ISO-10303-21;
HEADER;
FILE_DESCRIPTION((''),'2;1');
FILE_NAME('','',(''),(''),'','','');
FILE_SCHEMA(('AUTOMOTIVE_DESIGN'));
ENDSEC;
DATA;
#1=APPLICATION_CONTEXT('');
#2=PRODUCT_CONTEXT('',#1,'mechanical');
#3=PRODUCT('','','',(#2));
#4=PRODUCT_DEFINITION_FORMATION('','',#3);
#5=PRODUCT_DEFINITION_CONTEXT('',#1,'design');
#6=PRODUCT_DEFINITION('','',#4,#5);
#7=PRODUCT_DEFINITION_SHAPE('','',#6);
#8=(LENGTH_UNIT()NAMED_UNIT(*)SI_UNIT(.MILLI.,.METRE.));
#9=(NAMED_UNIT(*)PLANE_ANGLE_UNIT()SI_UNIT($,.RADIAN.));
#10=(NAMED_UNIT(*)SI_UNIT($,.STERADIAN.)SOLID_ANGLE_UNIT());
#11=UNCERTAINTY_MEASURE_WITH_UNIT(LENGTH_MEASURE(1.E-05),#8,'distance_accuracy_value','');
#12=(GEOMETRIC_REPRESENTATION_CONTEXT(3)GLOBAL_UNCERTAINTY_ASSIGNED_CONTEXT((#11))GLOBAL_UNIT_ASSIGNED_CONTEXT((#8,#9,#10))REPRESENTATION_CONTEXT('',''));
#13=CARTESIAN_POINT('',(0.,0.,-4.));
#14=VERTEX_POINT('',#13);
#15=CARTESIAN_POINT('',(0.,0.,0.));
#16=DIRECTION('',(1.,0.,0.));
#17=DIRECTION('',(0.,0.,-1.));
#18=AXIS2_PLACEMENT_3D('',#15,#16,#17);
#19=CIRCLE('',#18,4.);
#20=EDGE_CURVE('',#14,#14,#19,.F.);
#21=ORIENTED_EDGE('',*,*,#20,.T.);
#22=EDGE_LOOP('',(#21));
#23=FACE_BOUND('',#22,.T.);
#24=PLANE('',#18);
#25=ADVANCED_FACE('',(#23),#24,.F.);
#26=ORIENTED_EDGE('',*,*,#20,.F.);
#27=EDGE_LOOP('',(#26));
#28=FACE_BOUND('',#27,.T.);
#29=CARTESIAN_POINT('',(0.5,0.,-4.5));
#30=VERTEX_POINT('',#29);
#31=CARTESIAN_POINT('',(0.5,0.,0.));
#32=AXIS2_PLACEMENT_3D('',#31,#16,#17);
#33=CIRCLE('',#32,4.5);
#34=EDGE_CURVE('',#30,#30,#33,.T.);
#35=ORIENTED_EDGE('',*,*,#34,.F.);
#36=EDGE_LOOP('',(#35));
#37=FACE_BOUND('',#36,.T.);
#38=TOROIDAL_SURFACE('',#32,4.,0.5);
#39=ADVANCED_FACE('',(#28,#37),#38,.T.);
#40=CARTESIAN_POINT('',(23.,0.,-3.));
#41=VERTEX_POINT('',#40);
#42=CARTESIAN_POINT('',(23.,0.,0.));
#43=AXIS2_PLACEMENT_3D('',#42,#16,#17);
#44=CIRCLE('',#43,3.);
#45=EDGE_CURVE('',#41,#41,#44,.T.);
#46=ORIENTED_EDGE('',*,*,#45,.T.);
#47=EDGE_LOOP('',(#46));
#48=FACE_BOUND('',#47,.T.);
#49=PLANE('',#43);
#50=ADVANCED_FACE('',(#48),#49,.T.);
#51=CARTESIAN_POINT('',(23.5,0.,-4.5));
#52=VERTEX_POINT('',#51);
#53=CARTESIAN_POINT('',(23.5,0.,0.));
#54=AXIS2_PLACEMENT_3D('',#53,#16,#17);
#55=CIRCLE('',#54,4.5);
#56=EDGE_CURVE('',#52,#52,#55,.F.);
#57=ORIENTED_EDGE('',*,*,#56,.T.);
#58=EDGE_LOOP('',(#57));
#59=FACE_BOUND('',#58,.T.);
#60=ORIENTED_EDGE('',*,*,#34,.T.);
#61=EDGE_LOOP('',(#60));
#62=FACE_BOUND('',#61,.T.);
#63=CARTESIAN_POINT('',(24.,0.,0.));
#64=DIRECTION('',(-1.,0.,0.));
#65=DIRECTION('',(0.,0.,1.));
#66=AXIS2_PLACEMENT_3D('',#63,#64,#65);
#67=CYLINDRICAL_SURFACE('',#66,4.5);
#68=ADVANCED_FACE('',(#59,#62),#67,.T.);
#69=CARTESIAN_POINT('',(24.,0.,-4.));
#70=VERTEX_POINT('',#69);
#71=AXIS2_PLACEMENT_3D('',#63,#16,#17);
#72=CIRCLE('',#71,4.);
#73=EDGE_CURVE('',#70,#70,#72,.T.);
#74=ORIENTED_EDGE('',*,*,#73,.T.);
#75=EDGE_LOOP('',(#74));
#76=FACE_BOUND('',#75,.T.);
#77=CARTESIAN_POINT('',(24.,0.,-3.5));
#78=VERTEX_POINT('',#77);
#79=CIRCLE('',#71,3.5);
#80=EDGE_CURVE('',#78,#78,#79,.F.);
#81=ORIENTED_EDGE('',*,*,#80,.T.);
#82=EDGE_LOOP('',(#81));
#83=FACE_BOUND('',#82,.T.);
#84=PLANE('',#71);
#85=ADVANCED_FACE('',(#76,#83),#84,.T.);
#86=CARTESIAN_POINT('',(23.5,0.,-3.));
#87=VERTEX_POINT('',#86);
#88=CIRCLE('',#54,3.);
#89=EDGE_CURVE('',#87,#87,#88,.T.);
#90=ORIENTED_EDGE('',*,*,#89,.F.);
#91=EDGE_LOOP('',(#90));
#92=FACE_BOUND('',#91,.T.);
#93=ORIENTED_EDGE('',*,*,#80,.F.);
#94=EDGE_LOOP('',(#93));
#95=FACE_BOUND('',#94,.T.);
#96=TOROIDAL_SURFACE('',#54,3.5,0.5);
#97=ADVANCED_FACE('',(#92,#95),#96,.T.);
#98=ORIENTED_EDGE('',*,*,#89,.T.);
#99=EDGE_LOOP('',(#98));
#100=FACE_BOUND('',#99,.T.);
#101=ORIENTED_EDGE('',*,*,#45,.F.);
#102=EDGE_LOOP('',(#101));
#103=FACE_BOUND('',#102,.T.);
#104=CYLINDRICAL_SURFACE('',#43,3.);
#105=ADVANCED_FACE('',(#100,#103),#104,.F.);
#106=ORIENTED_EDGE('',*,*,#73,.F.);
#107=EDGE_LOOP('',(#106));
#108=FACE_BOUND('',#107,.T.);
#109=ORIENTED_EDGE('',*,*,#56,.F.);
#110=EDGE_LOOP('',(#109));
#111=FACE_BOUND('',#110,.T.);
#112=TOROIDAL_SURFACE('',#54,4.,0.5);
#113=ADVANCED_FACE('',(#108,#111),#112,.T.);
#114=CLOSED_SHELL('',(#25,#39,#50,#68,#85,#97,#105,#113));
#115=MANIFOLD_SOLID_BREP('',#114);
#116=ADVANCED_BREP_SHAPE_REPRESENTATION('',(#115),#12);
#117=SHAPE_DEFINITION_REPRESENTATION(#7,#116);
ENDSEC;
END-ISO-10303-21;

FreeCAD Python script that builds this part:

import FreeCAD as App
import Part
import Sketcher

V = App.Vector
Q = App.Units.Quantity


def edges_at(feature, points):
    """Names of the edges that pass closest to the given points."""
    edges = feature.Shape.Edges
    near = lambda p: min(range(len(edges)), key=lambda i: edges[i].distToShape(Part.Vertex(*p))[0])
    return sorted({f"Edge{near(p) + 1}" for p in points})

doc = App.newDocument("Part")
params = doc.addObject("Spreadsheet::Sheet", "Params")
for row, (alias, value) in enumerate([
    ("sketch1_diameter", "9 mm"),
    ("pad1_length", "24 mm"),
    ("fillet_radius", "0.5 mm"),
    ("sketch2_diameter", "6 mm"),
    ("pocket1_length", "1 mm"),
    ("fillet2_radius", "0.5 mm"),
], start=1):
    params.set(f"A{row}", alias)
    params.set(f"B{row}", "=" + value)
    params.setAlias(f"B{row}", alias)

body = doc.addObject("PartDesign::Body", "Body")

sketch1 = doc.addObject("Sketcher::SketchObject", "Sketch")
body.addObject(sketch1)
sketch1.AttachmentSupport = (doc.YZ_Plane, [""])
sketch1.MapMode = "FlatFace"
sketch1.addGeometry(Part.Circle(V(0, 0, 0), V(0, 0, 1), 4.5), False)
sketch1.addConstraint([
    Sketcher.Constraint("Coincident", 0, 3, -1, 1),
    Sketcher.Constraint("Diameter", 0, Q("9 mm")),
])
sketch1.setExpression("Constraints[1]", "Params.sketch1_diameter")
pad1 = doc.addObject("PartDesign::Pad", "Pad")
body.addObject(pad1)
pad1.Profile = sketch1
pad1.setExpression("Length", "Params.pad1_length")
doc.recompute()

fillet = doc.addObject("PartDesign::Fillet", "Fillet")
body.addObject(fillet)
fillet.Base = (pad1, edges_at(pad1, [(0, 0, 4.5)]))
fillet.setExpression("Radius", "Params.fillet_radius")

sketch2 = doc.addObject("Sketcher::SketchObject", "Sketch001")
body.addObject(sketch2)
sketch2.AttachmentSupport = (doc.YZ_Plane, [""])
sketch2.MapMode = "FlatFace"
sketch2.AttachmentOffset = App.Placement(V(0, 0, 24), App.Rotation())
sketch2.addGeometry(Part.Circle(V(0, 0, 0), V(0, 0, 1), 3), False)
sketch2.addConstraint([
    Sketcher.Constraint("Coincident", 0, 3, -1, 1),
    Sketcher.Constraint("Diameter", 0, Q("6 mm")),
])
sketch2.setExpression("Constraints[1]", "Params.sketch2_diameter")
pocket1 = doc.addObject("PartDesign::Pocket", "Pocket")
body.addObject(pocket1)
pocket1.Profile = sketch2
pocket1.setExpression("Length", "Params.pocket1_length")
doc.recompute()

fillet2 = doc.addObject("PartDesign::Fillet", "Fillet001")
body.addObject(fillet2)
fillet2.Base = (pocket1, edges_at(pocket1, [(24, 0, 4.5), (24, 0, 3)]))
fillet2.setExpression("Radius", "Params.fillet2_radius")

doc.recompute()
